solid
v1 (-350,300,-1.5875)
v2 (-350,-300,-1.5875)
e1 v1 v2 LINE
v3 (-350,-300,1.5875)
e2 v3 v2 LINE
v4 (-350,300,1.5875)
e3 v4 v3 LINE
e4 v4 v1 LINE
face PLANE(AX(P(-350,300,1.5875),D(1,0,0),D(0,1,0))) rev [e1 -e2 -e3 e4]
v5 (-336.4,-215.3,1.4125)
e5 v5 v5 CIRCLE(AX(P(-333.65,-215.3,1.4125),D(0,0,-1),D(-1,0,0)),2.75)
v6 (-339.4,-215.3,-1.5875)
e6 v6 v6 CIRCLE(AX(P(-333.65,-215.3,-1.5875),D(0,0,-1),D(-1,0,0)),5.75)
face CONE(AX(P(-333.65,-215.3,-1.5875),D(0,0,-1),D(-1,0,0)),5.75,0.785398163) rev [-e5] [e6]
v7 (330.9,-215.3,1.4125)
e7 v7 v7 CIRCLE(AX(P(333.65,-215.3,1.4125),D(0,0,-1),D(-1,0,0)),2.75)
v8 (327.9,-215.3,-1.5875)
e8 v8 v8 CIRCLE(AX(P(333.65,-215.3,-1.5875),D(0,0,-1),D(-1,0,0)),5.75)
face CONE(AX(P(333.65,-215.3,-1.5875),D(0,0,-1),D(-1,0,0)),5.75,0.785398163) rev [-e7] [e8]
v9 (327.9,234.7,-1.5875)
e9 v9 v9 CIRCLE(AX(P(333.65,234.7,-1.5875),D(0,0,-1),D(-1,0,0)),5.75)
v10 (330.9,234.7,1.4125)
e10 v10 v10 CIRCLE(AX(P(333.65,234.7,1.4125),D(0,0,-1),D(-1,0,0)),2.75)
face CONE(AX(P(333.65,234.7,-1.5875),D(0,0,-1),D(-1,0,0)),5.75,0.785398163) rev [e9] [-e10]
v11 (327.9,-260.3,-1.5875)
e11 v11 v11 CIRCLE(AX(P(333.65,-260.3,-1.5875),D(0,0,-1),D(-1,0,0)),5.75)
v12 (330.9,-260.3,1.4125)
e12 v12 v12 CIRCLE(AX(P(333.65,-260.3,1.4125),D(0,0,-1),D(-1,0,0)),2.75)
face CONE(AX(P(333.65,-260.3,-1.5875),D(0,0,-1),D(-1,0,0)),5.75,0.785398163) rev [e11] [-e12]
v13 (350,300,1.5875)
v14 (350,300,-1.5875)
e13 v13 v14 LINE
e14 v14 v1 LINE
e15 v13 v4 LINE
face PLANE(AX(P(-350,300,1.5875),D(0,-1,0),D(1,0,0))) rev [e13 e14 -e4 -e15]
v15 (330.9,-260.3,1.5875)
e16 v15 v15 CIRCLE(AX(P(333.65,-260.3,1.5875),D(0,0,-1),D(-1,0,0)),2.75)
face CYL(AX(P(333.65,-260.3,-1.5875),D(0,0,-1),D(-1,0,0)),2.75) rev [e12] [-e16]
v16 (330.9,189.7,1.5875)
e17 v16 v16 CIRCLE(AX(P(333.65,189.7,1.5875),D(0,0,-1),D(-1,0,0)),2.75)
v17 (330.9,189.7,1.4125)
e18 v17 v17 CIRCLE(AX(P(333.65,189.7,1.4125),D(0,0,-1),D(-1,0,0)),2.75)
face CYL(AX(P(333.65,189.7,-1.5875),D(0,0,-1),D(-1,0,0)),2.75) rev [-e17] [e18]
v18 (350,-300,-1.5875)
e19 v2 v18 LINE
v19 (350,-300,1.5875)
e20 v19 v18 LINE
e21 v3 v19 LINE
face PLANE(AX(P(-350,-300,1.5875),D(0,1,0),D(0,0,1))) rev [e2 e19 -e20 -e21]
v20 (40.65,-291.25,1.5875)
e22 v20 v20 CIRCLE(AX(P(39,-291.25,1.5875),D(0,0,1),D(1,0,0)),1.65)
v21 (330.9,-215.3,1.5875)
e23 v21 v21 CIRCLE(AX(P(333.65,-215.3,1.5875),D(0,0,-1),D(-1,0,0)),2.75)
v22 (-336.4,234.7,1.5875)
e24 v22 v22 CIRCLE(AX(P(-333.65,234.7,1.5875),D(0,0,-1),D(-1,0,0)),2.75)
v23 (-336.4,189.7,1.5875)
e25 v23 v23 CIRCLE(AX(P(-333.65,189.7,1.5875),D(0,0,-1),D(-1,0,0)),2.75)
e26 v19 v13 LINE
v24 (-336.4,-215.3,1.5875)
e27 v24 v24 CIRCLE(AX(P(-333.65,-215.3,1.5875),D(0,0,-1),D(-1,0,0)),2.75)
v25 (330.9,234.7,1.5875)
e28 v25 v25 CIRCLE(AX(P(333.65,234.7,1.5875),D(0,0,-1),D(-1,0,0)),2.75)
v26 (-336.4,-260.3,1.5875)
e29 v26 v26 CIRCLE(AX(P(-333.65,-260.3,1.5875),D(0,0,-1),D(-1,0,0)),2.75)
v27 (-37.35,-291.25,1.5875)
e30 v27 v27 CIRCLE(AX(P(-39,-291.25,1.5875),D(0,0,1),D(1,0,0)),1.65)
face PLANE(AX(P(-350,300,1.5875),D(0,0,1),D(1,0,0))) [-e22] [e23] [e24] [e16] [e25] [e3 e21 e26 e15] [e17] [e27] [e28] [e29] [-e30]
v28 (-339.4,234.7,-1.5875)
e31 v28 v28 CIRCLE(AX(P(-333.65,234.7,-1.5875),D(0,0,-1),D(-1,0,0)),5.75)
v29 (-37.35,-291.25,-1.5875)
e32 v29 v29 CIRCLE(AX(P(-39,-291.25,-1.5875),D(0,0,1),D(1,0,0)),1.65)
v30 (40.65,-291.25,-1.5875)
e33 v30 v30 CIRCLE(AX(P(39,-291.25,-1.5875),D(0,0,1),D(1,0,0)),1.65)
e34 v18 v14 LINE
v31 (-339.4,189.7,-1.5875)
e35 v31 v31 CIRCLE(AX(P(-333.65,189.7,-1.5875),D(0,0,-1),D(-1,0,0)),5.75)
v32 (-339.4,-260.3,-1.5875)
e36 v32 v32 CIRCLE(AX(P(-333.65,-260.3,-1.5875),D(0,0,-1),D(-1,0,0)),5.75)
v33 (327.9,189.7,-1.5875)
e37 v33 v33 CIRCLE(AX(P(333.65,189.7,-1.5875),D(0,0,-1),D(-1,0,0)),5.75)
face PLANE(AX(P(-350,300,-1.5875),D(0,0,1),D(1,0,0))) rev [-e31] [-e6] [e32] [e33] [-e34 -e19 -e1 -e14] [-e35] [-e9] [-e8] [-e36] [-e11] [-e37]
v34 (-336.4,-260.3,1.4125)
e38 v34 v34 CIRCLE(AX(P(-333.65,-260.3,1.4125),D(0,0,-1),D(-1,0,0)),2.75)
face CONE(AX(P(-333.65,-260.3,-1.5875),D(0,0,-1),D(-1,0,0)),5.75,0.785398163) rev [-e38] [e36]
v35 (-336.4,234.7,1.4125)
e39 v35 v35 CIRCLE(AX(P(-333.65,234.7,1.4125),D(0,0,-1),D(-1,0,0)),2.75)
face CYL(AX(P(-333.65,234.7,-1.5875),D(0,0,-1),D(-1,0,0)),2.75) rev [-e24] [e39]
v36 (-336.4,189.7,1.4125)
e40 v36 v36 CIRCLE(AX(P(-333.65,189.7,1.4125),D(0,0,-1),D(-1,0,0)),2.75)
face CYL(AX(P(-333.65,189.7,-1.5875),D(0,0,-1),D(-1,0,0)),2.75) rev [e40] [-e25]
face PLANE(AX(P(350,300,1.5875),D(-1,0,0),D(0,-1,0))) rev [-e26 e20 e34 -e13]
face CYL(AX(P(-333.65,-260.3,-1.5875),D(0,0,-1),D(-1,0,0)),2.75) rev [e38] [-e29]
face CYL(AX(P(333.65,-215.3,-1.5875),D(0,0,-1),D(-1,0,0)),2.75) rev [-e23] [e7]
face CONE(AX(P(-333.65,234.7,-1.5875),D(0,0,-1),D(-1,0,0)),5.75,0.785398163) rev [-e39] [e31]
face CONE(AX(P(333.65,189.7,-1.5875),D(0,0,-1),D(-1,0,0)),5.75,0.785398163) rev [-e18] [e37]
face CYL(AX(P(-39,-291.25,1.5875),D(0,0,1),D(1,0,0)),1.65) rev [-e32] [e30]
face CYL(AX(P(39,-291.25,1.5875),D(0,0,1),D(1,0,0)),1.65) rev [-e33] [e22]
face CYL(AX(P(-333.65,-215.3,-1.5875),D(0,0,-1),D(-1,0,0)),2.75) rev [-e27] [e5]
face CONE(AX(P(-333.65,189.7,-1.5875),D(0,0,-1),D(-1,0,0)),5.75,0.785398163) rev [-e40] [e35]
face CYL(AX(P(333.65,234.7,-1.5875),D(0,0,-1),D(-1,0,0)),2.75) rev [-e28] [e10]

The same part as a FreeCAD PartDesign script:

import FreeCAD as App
import Part
import Sketcher
from FreeCAD import Vector
Q = App.Units.Quantity

doc = App.newDocument("Part")
params = doc.addObject("Spreadsheet::Sheet", "Params")
for row, (alias, value) in enumerate([
    ("sketch1_width", "700 mm"),
    ("sketch1_height", "600 mm"),
    ("pad1_length", "3.175 mm"),
    ("sketch2_width", "5.75 mm"),
    ("groove_angle", "360 deg"),
    ("linearpattern_pitch", "45 mm"),
    ("linearpattern2_pitch", "450 mm"),
    ("linearpattern3_pitch", "495 mm"),
    ("linearpattern4_pitch", "830.851545 mm"),
    ("linearpattern5_pitch", "804.853583 mm"),
    ("linearpattern6_pitch", "668.815587 mm"),
    ("linearpattern7_pitch", "667.3 mm"),
    ("sketch3_diameter", "3.3 mm"),
    ("hole_diameter", "3.3 mm"),
], start=1):
    params.set(f"A{row}", alias)
    params.set(f"B{row}", "=" + value)
    params.setAlias(f"B{row}", alias)

body = doc.addObject("PartDesign::Body", "Body")

sketch1 = body.newObject("Sketcher::SketchObject", "Sketch")
sketch1.AttachmentSupport = (doc.getObject("XY_Plane"), [""])
sketch1.MapMode = "FlatFace"
sketch1.addGeometry(Part.LineSegment(Vector(-350, 300, 0), Vector(-350, -300, 0)), False)
sketch1.addGeometry(Part.LineSegment(Vector(-350, -300, 0), Vector(350, -300, 0)), False)
sketch1.addGeometry(Part.LineSegment(Vector(350, -300, 0), Vector(350, 300, 0)), False)
sketch1.addGeometry(Part.LineSegment(Vector(350, 300, 0), Vector(-350, 300, 0)), False)
sketch1.addConstraint(Sketcher.Constraint("Coincident", 0, 2, 1, 1))
sketch1.addConstraint(Sketcher.Constraint("Coincident", 1, 2, 2, 1))
sketch1.addConstraint(Sketcher.Constraint("Coincident", 2, 2, 3, 1))
sketch1.addConstraint(Sketcher.Constraint("Coincident", 3, 2, 0, 1))
sketch1.addConstraint(Sketcher.Constraint("Vertical", 0))
sketch1.addConstraint(Sketcher.Constraint("Horizontal", 1))
sketch1.addConstraint(Sketcher.Constraint("Vertical", 2))
sketch1.addConstraint(Sketcher.Constraint("Horizontal", 3))
sketch1.addConstraint(Sketcher.Constraint("Symmetric", 0, 2, 2, 2, -1, 1))
sketch1.addConstraint(Sketcher.Constraint("DistanceX", 1, 1, 1, 2, Q("700 mm")))
sketch1.addConstraint(Sketcher.Constraint("DistanceY", 0, 2, 0, 1, Q("600 mm")))
sketch1.setExpression("Constraints[9]", "Params.sketch1_width")
sketch1.setExpression("Constraints[10]", "Params.sketch1_height")
pad1 = body.newObject("PartDesign::Pad", "Pad")
pad1.Profile = sketch1
pad1.setExpression("Length", "Params.pad1_length")
pad1.Midplane = True

sketch2 = body.newObject("Sketcher::SketchObject", "Sketch001")
sketch2.AttachmentSupport = (doc.getObject("YZ_Plane"), [""])
sketch2.MapMode = "FlatFace"
sketch2.AttachmentOffset = App.Placement(Vector(0, 0, 333.65), App.Rotation())
sketch2.addGeometry(Part.LineSegment(Vector(234.7, 1.5875, 0), Vector(234.7, -1.5875, 0)), False)
sketch2.addGeometry(Part.LineSegment(Vector(234.7, -1.5875, 0), Vector(240.45, -1.5875, 0)), False)
sketch2.addGeometry(Part.LineSegment(Vector(240.45, -1.5875, 0), Vector(237.45, 1.4125, 0)), False)
sketch2.addGeometry(Part.LineSegment(Vector(237.45, 1.4125, 0), Vector(237.45, 1.5875, 0)), False)
sketch2.addGeometry(Part.LineSegment(Vector(237.45, 1.5875, 0), Vector(234.7, 1.5875, 0)), False)
sketch2.addGeometry(Part.LineSegment(Vector(234.7, -1.5875, 0), Vector(234.7, 1.5875, 0)), True)
sketch2.addConstraint(Sketcher.Constraint("Coincident", 0, 2, 1, 1))
sketch2.addConstraint(Sketcher.Constraint("Coincident", 1, 2, 2, 1))
sketch2.addConstraint(Sketcher.Constraint("Coincident", 2, 2, 3, 1))
sketch2.addConstraint(Sketcher.Constraint("Coincident", 3, 2, 4, 1))
sketch2.addConstraint(Sketcher.Constraint("Coincident", 4, 2, 0, 1))
sketch2.addConstraint(Sketcher.Constraint("Vertical", 0))
sketch2.addConstraint(Sketcher.Constraint("Horizontal", 1))
sketch2.addConstraint(Sketcher.Constraint("Vertical", 3))
sketch2.addConstraint(Sketcher.Constraint("Horizontal", 4))
sketch2.addConstraint(Sketcher.Constraint("Vertical", 5))
sketch2.addConstraint(Sketcher.Constraint("Coincident", 5, 1, 0, 2))
sketch2.addConstraint(Sketcher.Constraint("Horizontal", 3, 2, 5, 2))
sketch2.addConstraint(Sketcher.Constraint("Angle", 2, Q("135 deg")))
sketch2.addConstraint(Sketcher.Constraint("DistanceY", 0, 2, 2, 2, Q("3 mm")))
sketch2.addConstraint(Sketcher.Constraint("DistanceX", 1, 1, 1, 2, Q("5.75 mm")))
sketch2.addConstraint(Sketcher.Constraint("DistanceX", -1, 1, 0, 2, Q("234.7 mm")))
sketch2.addConstraint(Sketcher.Constraint("DistanceY", 0, 2, 0, 1, Q("3.175 mm")))
sketch2.addConstraint(Sketcher.Constraint("DistanceY", 0, 2, -1, 1, Q("1.5875 mm")))
sketch2.setExpression("Constraints[14]", "Params.sketch2_width")
groove = body.newObject("PartDesign::Groove", "Groove")
groove.Profile = sketch2
groove.ReferenceAxis = (sketch2, ["Axis0"])
groove.setExpression("Angle", "Params.groove_angle")
doc.recompute()

linearpattern = body.newObject("PartDesign::LinearPattern", "LinearPattern")
linearpattern.Originals = [groove]
linearpattern.Direction = (doc.getObject("Y_Axis"), [""])
linearpattern.Mode = "offset"
linearpattern.setExpression("Offset", "Params.linearpattern_pitch")
linearpattern.Occurrences = 2
linearpattern.Reversed = True
body.Tip = linearpattern
doc.recompute()

linearpattern2 = body.newObject("PartDesign::LinearPattern", "LinearPattern001")
linearpattern2.Originals = [groove]
linearpattern2.Direction = (doc.getObject("Y_Axis"), [""])
linearpattern2.Mode = "offset"
linearpattern2.setExpression("Offset", "Params.linearpattern2_pitch")
linearpattern2.Occurrences = 2
linearpattern2.Reversed = True
body.Tip = linearpattern2
doc.recompute()

linearpattern3 = body.newObject("PartDesign::LinearPattern", "LinearPattern002")
linearpattern3.Originals = [groove]
linearpattern3.Direction = (doc.getObject("Y_Axis"), [""])
linearpattern3.Mode = "offset"
linearpattern3.setExpression("Offset", "Params.linearpattern3_pitch")
linearpattern3.Occurrences = 2
linearpattern3.Reversed = True
body.Tip = linearpattern3
doc.recompute()

datumline = body.newObject("PartDesign::Line", "DatumLine")
datumline.Placement = App.Placement(Vector(0, 0, 0), App.Rotation(Vector(0, 0, 1), Vector(-0.803151904, -0.595774303, 0)))
linearpattern4 = body.newObject("PartDesign::LinearPattern", "LinearPattern003")
linearpattern4.Originals = [groove]
linearpattern4.Direction = (datumline, [""])
linearpattern4.Mode = "offset"
linearpattern4.setExpression("Offset", "Params.linearpattern4_pitch")
linearpattern4.Occurrences = 2
body.Tip = linearpattern4
doc.recompute()

datumline2 = body.newObject("PartDesign::Line", "DatumLine001")
datumline2.Placement = App.Placement(Vector(0, 0, 0), App.Rotation(Vector(0, 0, 1), Vector(-0.829094899, -0.559107904, 0)))
linearpattern5 = body.newObject("PartDesign::LinearPattern", "LinearPattern004")
linearpattern5.Originals = [groove]
linearpattern5.Direction = (datumline2, [""])
linearpattern5.Mode = "offset"
linearpattern5.setExpression("Offset", "Params.linearpattern5_pitch")
linearpattern5.Occurrences = 2
body.Tip = linearpattern5
doc.recompute()

datumline3 = body.newObject("PartDesign::Line", "DatumLine002")
datumline3.Placement = App.Placement(Vector(0, 0, 0), App.Rotation(Vector(0, 0, 1), Vector(-0.997733923, -0.067283121, 0)))
linearpattern6 = body.newObject("PartDesign::LinearPattern", "LinearPattern005")
linearpattern6.Originals = [groove]
linearpattern6.Direction = (datumline3, [""])
linearpattern6.Mode = "offset"
linearpattern6.setExpression("Offset", "Params.linearpattern6_pitch")
linearpattern6.Occurrences = 2
body.Tip = linearpattern6
doc.recompute()

linearpattern7 = body.newObject("PartDesign::LinearPattern", "LinearPattern006")
linearpattern7.Originals = [groove]
linearpattern7.Direction = (doc.getObject("X_Axis"), [""])
linearpattern7.Mode = "offset"
linearpattern7.setExpression("Offset", "Params.linearpattern7_pitch")
linearpattern7.Occurrences = 2
linearpattern7.Reversed = True
body.Tip = linearpattern7

sketch3 = body.newObject("Sketcher::SketchObject", "Sketch002")
sketch3.AttachmentSupport = (doc.getObject("XY_Plane"), [""])
sketch3.MapMode = "FlatFace"
sketch3.AttachmentOffset = App.Placement(Vector(0, 0, 1.5875), App.Rotation())
sketch3.addGeometry(Part.Circle(Vector(-39, -291.25, 0), Vector(0, 0, 1), 1.65), False)
sketch3.addGeometry(Part.Circle(Vector(39, -291.25, 0), Vector(0, 0, 1), 1.65), False)
sketch3.addConstraint(Sketcher.Constraint("Equal", 0, 1))
sketch3.addConstraint(Sketcher.Constraint("Symmetric", 0, 3, 1, 3, -2))
sketch3.addConstraint(Sketcher.Constraint("Diameter", 0, Q("3.3 mm")))
sketch3.addConstraint(Sketcher.Constraint("DistanceX", 0, 3, -1, 1, Q("39 mm")))
sketch3.addConstraint(Sketcher.Constraint("DistanceY", 0, 3, -1, 1, Q("291.25 mm")))
sketch3.setExpression("Constraints[2]", "Params.sketch3_diameter")
doc.recompute()
hole = body.newObject("PartDesign::Hole", "Hole")
hole.Profile = sketch3
hole.ThreadType = "None"
hole.setExpression("Diameter", "Params.hole_diameter")
hole.DepthType = "ThroughAll"

doc.recompute()
